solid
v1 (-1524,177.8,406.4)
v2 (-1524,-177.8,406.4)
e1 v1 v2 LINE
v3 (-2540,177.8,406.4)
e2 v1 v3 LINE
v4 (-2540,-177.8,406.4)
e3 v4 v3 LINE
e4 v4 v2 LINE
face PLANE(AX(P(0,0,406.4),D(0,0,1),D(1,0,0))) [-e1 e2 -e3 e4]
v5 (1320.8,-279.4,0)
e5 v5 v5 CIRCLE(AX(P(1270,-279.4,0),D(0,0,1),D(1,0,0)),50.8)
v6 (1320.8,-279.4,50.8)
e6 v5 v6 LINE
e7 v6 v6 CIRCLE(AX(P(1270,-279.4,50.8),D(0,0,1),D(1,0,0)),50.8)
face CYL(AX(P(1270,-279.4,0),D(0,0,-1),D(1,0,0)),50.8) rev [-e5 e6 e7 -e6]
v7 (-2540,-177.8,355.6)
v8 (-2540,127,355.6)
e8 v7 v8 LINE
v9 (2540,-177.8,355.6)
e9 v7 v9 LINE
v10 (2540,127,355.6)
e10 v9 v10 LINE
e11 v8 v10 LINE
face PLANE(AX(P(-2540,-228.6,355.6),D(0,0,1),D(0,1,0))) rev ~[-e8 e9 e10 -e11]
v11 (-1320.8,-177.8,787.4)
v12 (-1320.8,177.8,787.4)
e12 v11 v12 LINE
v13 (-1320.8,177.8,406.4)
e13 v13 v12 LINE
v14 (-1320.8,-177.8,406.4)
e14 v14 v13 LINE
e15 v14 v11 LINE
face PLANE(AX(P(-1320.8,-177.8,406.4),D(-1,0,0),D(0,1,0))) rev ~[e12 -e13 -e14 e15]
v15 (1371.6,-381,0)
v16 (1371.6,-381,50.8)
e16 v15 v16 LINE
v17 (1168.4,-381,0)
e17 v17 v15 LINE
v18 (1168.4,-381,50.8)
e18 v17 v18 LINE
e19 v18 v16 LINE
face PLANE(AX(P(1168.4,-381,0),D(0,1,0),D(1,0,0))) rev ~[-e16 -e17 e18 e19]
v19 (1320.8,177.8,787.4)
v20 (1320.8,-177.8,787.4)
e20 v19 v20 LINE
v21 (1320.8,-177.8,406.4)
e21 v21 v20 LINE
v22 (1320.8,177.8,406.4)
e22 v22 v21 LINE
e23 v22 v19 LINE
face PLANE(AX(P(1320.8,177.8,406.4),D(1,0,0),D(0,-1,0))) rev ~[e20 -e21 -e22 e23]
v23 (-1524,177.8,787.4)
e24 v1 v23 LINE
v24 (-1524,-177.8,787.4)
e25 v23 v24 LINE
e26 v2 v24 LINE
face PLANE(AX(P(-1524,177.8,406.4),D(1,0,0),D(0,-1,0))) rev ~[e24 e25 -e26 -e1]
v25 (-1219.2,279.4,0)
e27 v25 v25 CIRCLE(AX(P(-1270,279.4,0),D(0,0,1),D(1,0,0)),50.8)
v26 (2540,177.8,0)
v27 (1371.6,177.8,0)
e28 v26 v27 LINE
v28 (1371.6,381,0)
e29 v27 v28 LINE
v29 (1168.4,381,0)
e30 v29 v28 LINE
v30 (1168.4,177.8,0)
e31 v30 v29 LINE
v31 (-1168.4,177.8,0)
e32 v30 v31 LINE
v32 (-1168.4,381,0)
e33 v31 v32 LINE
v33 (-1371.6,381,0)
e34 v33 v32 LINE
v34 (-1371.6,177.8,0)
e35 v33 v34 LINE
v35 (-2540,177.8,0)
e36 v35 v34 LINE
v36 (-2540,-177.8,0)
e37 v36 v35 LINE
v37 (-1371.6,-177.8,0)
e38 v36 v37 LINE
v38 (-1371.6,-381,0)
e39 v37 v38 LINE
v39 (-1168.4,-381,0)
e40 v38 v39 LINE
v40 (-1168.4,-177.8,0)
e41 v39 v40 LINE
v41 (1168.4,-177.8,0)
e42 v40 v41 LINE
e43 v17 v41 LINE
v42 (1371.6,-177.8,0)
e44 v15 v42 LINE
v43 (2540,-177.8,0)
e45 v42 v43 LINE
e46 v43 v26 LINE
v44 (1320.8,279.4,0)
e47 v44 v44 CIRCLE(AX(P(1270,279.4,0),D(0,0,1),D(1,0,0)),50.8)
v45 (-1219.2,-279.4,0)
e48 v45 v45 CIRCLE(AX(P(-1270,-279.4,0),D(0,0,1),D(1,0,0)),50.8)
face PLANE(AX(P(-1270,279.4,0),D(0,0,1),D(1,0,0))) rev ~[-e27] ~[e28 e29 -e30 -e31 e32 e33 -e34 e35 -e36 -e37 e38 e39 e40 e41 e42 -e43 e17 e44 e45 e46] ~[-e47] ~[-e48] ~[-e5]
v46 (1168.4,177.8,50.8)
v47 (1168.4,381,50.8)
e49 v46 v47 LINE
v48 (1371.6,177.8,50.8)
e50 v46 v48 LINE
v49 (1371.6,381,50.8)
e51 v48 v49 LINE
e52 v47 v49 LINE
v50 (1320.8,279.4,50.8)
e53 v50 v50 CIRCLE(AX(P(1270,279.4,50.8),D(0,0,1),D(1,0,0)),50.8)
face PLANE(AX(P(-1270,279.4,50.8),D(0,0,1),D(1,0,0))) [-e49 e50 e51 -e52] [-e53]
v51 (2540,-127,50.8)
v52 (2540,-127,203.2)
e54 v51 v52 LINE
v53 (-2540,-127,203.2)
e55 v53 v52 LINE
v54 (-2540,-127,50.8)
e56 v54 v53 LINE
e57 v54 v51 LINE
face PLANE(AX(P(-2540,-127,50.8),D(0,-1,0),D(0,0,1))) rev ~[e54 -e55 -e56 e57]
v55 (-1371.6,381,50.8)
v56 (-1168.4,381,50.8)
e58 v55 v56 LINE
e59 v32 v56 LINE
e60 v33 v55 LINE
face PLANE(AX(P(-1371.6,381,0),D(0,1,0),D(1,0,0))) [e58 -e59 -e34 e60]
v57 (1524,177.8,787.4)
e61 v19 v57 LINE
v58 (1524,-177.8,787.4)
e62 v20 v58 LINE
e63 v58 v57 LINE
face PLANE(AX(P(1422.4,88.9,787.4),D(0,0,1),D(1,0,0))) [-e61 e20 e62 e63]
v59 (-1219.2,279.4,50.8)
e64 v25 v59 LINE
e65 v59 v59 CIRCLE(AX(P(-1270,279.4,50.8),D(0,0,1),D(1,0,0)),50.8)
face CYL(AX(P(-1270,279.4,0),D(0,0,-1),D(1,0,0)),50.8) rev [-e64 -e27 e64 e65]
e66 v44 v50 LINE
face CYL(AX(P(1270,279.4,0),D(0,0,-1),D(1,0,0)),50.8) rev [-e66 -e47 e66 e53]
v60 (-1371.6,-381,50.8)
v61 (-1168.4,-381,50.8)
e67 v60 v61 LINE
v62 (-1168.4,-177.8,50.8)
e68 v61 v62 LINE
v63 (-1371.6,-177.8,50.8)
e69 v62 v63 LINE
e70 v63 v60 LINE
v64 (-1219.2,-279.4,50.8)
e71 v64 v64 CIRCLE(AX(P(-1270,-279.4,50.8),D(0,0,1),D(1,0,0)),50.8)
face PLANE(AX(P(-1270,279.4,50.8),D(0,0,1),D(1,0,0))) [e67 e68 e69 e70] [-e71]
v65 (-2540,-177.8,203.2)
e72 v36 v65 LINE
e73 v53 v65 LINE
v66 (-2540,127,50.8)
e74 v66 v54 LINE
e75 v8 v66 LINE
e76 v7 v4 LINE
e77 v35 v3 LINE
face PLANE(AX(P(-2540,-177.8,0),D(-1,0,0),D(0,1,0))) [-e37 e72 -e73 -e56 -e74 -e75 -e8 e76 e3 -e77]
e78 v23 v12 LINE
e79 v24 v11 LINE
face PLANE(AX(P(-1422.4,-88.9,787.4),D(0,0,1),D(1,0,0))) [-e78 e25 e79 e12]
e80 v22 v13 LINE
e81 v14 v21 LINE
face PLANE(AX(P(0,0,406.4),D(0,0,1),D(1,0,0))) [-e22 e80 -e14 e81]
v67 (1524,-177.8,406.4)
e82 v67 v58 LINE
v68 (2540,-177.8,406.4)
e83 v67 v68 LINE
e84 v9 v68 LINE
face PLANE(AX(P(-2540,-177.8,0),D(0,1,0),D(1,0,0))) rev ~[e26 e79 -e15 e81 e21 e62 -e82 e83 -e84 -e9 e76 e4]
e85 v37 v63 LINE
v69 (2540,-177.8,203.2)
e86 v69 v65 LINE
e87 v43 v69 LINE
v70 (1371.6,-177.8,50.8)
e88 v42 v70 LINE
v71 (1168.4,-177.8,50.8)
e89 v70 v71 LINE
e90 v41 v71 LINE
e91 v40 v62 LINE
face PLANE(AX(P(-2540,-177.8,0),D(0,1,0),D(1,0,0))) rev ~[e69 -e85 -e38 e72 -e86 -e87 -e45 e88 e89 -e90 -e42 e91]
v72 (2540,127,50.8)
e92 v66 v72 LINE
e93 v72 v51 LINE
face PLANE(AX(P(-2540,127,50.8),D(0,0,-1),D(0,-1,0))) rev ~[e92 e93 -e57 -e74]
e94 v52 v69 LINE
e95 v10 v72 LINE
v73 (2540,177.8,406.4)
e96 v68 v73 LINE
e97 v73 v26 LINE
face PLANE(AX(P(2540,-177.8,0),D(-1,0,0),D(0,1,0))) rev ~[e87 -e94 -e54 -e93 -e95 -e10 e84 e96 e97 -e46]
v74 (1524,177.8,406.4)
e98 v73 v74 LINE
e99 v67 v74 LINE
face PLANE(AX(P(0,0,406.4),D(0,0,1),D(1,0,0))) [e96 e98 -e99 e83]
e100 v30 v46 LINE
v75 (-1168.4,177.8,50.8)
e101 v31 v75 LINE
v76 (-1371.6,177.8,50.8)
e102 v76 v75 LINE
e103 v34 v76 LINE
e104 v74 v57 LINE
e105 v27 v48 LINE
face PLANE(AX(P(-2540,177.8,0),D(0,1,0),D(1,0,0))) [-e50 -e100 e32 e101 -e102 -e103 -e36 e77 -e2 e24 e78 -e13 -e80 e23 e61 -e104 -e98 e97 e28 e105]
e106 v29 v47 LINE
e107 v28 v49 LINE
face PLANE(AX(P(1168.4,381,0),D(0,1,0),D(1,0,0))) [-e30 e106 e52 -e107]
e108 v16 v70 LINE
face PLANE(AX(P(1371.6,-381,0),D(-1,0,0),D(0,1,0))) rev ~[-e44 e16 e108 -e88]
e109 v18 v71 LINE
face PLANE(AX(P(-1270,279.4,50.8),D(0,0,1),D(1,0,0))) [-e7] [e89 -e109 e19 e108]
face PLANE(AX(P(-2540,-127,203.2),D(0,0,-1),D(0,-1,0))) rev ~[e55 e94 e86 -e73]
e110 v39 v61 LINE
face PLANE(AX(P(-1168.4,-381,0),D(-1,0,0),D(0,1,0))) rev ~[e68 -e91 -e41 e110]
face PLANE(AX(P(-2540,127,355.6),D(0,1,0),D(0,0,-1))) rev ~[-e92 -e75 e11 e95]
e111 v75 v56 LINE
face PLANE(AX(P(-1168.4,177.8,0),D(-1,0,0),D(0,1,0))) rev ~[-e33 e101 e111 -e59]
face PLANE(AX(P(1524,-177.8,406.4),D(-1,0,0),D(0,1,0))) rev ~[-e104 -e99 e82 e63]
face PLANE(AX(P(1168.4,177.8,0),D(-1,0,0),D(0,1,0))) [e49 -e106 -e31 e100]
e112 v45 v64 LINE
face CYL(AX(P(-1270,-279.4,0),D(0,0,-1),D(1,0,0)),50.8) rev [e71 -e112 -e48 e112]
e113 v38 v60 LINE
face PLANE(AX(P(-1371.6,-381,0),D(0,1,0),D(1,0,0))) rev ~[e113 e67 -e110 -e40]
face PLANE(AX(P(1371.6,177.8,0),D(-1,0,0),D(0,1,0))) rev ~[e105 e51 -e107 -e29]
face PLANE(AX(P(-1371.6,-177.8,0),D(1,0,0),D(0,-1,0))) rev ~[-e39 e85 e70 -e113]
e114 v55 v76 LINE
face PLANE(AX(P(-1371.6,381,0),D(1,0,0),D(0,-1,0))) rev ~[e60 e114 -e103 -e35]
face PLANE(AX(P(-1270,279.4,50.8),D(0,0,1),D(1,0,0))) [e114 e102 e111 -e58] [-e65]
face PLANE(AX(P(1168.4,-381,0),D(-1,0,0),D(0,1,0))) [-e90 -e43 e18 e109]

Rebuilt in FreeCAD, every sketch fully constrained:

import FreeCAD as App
import Part
import Sketcher
from FreeCAD import Vector
Q = App.Units.Quantity


def add_polygon(sketch, points):
    """Adds a closed chain of lines whose ends are joined by coincident constraints."""
    first, n = sketch.GeometryCount, len(points)
    for a, b in zip(points, points[1:] + points[:1]):
        sketch.addGeometry(Part.LineSegment(App.Vector(*a, 0), App.Vector(*b, 0)), False)
    for i in range(n):
        sketch.addConstraint(Sketcher.Constraint("Coincident", first + i, 2, first + (i + 1) % n, 1))

doc = App.newDocument("Part")
body = doc.addObject("PartDesign::Body", "Body")

# Sketch on XY plane
sketch1 = doc.addObject("Sketcher::SketchObject", "Sketch")
body.addObject(sketch1)
sketch1.AttachmentSupport = (doc.XY_Plane, [""])
sketch1.MapMode = "FlatFace"
add_polygon(sketch1, [(-1372, 381), (-1372, 178), (-2540, 178), (-2540, -178), (-1372, -178), (-1372, -381), (-1168, -381), (-1168, -178), (1168, -178), (1168, -381), (1372, -381), (1372, -178), (2540, -178), (2540, 178), (1372, 178), (1372, 381), (1168, 381), (1168, 178), (-1168, 178), (-1168, 381)])  # lines 0-19
sketch1.addGeometry(Part.Circle(Vector(-1270, -279, 0), Vector(0, 0, 1), 51), False)  # 20
sketch1.addGeometry(Part.Circle(Vector(1270, -279, 0), Vector(0, 0, 1), 51), False)  # 21
sketch1.addGeometry(Part.Circle(Vector(-1270, 279, 0), Vector(0, 0, 1), 51), False)  # 22
sketch1.addGeometry(Part.Circle(Vector(1270, 279, 0), Vector(0, 0, 1), 51), False)  # 23
sketch1.addConstraint([
    Sketcher.Constraint("Vertical", 0),
    Sketcher.Constraint("Horizontal", 1),
    Sketcher.Constraint("Vertical", 2),
    Sketcher.Constraint("Horizontal", 3),
    Sketcher.Constraint("Vertical", 4),
    Sketcher.Constraint("Horizontal", 5),
    Sketcher.Constraint("Vertical", 6),
    Sketcher.Constraint("Horizontal", 7),
    Sketcher.Constraint("Vertical", 8),
    Sketcher.Constraint("Horizontal", 9),
    Sketcher.Constraint("Vertical", 10),
    Sketcher.Constraint("Horizontal", 11),
    Sketcher.Constraint("Vertical", 12),
    Sketcher.Constraint("Horizontal", 13),
    Sketcher.Constraint("Vertical", 14),
    Sketcher.Constraint("Horizontal", 15),
    Sketcher.Constraint("Vertical", 16),
    Sketcher.Constraint("Horizontal", 17),
    Sketcher.Constraint("Vertical", 18),
    Sketcher.Constraint("Horizontal", 19),
    Sketcher.Constraint("Equal", 20, 21),
    Sketcher.Constraint("Equal", 21, 22),
    Sketcher.Constraint("Equal", 22, 23),
    Sketcher.Constraint("Symmetric", 21, 3, 22, 3, -1, 1),
    Sketcher.Constraint("Symmetric", 20, 3, 23, 3, -1, 1),
    Sketcher.Constraint("Symmetric", 0, 2, 10, 2, -1, 1),
    Sketcher.Constraint("Symmetric", 2, 2, 12, 2, -1, 1),
    Sketcher.Constraint("Symmetric", 4, 2, 14, 2, -1, 1),
    Sketcher.Constraint("Symmetric", 6, 2, 16, 2, -1, 1),
    Sketcher.Constraint("Symmetric", 8, 2, 18, 2, -1, 1),
    Sketcher.Constraint("Symmetric", 20, 3, 21, 3, -2),
    Sketcher.Constraint("Symmetric", 5, 2, 8, 2, -2),
    Sketcher.Constraint("Symmetric", 3, 2, 10, 2, -2),
    Sketcher.Constraint("Horizontal", 3, 2, 6, 2),
    Sketcher.Constraint("Equal", 19, 0),
    Sketcher.Constraint("Diameter", 20, Q("4 in")),
    Sketcher.Constraint("DistanceX", 1, 2, 1, 1, Q("46 in")),
    Sketcher.Constraint("DistanceX", 5, 1, 5, 2, Q("8 in")),
    Sketcher.Constraint("DistanceX", 7, 1, 7, 2, Q("92 in")),
    Sketcher.Constraint("DistanceY", 2, 2, 2, 1, Q("14 in")),
    Sketcher.Constraint("DistanceX", 20, 3, -1, 1, Q("50 in")),
    Sketcher.Constraint("DistanceY", 20, 3, -1, 1, Q("11 in")),
])
pad1 = doc.addObject("PartDesign::Pad", "Pad")
body.addObject(pad1)
pad1.Profile = sketch1
pad1.Length = Q("2 in")

# Sketch on XY plane
sketch2 = doc.addObject("Sketcher::SketchObject", "Sketch001")
body.addObject(sketch2)
sketch2.AttachmentSupport = (doc.XY_Plane, [""])
sketch2.MapMode = "FlatFace"
add_polygon(sketch2, [(-2540, 178), (-2540, -178), (2540, -178), (2540, 178)])  # lines 0-3
sketch2.addConstraint([
    Sketcher.Constraint("Vertical", 0),
    Sketcher.Constraint("Horizontal", 1),
    Sketcher.Constraint("Vertical", 2),
    Sketcher.Constraint("Horizontal", 3),
    Sketcher.Constraint("Symmetric", 0, 2, 2, 2, -1, 1),
    Sketcher.Constraint("DistanceX", 1, 1, 1, 2, Q("200 in")),
    Sketcher.Constraint("DistanceY", 0, 2, 0, 1, Q("14 in")),
])
pad2 = doc.addObject("PartDesign::Pad", "Pad001")
body.addObject(pad2)
pad2.Profile = sketch2
pad2.Length = Q("16 in")

# Sketch on YZ plane
sketch3 = doc.addObject("Sketcher::SketchObject", "Sketch002")
body.addObject(sketch3)
sketch3.AttachmentSupport = (doc.YZ_Plane, [""])
sketch3.MapMode = "FlatFace"
sketch3.AttachmentOffset = App.Placement(Vector(0, 0, -100 * 25.4), App.Rotation())
add_polygon(sketch3, [(127, 356), (127, 51), (-127, 51), (-127, 203), (-229, 203), (-229, 356)])  # lines 0-5
sketch3.addConstraint([
    Sketcher.Constraint("Vertical", 0),
    Sketcher.Constraint("Horizontal", 1),
    Sketcher.Constraint("Vertical", 2),
    Sketcher.Constraint("Horizontal", 3),
    Sketcher.Constraint("Vertical", 4),
    Sketcher.Constraint("Horizontal", 5),
    Sketcher.Constraint("Equal", 2, 4),
    Sketcher.Constraint("DistanceX", 1, 2, 1, 1, Q("10 in")),
    Sketcher.Constraint("DistanceX", 3, 2, 3, 1, Q("4 in")),
    Sketcher.Constraint("DistanceY", 0, 2, 0, 1, Q("12 in")),
    Sketcher.Constraint("DistanceX", -1, 1, 0, 2, Q("5 in")),
    Sketcher.Constraint("DistanceY", -1, 1, 0, 2, Q("2 in")),
])
pocket1 = doc.addObject("PartDesign::Pocket", "Pocket")
body.addObject(pocket1)
pocket1.Profile = sketch3
pocket1.Length = Q("234.8 in")
pocket1.Reversed = True

# Sketch on XY plane
sketch4 = doc.addObject("Sketcher::SketchObject", "Sketch003")
body.addObject(sketch4)
sketch4.AttachmentSupport = (doc.XY_Plane, [""])
sketch4.MapMode = "FlatFace"
sketch4.AttachmentOffset = App.Placement(Vector(0, 0, 16 * 25.4), App.Rotation())
add_polygon(sketch4, [(1321, 178), (1321, -178), (1524, -178), (1524, 178)])  # lines 0-3
add_polygon(sketch4, [(-1524, -178), (-1321, -178), (-1321, 178), (-1524, 178)])  # lines 4-7
sketch4.addConstraint([
    Sketcher.Constraint("Vertical", 0),
    Sketcher.Constraint("Horizontal", 1),
    Sketcher.Constraint("Vertical", 2),
    Sketcher.Constraint("Horizontal", 3),
    Sketcher.Constraint("Horizontal", 4),
    Sketcher.Constraint("Vertical", 5),
    Sketcher.Constraint("Horizontal", 6),
    Sketcher.Constraint("Vertical", 7),
    Sketcher.Constraint("Symmetric", 3, 2, 4, 2, -1, 1),
    Sketcher.Constraint("Symmetric", 1, 2, 6, 2, -1, 1),
    Sketcher.Constraint("Horizontal", 1, 2, 4, 2),
    Sketcher.Constraint("DistanceX", 1, 1, 1, 2, Q("8 in")),
    Sketcher.Constraint("DistanceY", 0, 2, 0, 1, Q("14 in")),
    Sketcher.Constraint("DistanceX", -1, 1, 0, 2, Q("52 in")),
])
pad3 = doc.addObject("PartDesign::Pad", "Pad002")
body.addObject(pad3)
pad3.Profile = sketch4
pad3.Length = Q("15 in")

doc.recompute()
